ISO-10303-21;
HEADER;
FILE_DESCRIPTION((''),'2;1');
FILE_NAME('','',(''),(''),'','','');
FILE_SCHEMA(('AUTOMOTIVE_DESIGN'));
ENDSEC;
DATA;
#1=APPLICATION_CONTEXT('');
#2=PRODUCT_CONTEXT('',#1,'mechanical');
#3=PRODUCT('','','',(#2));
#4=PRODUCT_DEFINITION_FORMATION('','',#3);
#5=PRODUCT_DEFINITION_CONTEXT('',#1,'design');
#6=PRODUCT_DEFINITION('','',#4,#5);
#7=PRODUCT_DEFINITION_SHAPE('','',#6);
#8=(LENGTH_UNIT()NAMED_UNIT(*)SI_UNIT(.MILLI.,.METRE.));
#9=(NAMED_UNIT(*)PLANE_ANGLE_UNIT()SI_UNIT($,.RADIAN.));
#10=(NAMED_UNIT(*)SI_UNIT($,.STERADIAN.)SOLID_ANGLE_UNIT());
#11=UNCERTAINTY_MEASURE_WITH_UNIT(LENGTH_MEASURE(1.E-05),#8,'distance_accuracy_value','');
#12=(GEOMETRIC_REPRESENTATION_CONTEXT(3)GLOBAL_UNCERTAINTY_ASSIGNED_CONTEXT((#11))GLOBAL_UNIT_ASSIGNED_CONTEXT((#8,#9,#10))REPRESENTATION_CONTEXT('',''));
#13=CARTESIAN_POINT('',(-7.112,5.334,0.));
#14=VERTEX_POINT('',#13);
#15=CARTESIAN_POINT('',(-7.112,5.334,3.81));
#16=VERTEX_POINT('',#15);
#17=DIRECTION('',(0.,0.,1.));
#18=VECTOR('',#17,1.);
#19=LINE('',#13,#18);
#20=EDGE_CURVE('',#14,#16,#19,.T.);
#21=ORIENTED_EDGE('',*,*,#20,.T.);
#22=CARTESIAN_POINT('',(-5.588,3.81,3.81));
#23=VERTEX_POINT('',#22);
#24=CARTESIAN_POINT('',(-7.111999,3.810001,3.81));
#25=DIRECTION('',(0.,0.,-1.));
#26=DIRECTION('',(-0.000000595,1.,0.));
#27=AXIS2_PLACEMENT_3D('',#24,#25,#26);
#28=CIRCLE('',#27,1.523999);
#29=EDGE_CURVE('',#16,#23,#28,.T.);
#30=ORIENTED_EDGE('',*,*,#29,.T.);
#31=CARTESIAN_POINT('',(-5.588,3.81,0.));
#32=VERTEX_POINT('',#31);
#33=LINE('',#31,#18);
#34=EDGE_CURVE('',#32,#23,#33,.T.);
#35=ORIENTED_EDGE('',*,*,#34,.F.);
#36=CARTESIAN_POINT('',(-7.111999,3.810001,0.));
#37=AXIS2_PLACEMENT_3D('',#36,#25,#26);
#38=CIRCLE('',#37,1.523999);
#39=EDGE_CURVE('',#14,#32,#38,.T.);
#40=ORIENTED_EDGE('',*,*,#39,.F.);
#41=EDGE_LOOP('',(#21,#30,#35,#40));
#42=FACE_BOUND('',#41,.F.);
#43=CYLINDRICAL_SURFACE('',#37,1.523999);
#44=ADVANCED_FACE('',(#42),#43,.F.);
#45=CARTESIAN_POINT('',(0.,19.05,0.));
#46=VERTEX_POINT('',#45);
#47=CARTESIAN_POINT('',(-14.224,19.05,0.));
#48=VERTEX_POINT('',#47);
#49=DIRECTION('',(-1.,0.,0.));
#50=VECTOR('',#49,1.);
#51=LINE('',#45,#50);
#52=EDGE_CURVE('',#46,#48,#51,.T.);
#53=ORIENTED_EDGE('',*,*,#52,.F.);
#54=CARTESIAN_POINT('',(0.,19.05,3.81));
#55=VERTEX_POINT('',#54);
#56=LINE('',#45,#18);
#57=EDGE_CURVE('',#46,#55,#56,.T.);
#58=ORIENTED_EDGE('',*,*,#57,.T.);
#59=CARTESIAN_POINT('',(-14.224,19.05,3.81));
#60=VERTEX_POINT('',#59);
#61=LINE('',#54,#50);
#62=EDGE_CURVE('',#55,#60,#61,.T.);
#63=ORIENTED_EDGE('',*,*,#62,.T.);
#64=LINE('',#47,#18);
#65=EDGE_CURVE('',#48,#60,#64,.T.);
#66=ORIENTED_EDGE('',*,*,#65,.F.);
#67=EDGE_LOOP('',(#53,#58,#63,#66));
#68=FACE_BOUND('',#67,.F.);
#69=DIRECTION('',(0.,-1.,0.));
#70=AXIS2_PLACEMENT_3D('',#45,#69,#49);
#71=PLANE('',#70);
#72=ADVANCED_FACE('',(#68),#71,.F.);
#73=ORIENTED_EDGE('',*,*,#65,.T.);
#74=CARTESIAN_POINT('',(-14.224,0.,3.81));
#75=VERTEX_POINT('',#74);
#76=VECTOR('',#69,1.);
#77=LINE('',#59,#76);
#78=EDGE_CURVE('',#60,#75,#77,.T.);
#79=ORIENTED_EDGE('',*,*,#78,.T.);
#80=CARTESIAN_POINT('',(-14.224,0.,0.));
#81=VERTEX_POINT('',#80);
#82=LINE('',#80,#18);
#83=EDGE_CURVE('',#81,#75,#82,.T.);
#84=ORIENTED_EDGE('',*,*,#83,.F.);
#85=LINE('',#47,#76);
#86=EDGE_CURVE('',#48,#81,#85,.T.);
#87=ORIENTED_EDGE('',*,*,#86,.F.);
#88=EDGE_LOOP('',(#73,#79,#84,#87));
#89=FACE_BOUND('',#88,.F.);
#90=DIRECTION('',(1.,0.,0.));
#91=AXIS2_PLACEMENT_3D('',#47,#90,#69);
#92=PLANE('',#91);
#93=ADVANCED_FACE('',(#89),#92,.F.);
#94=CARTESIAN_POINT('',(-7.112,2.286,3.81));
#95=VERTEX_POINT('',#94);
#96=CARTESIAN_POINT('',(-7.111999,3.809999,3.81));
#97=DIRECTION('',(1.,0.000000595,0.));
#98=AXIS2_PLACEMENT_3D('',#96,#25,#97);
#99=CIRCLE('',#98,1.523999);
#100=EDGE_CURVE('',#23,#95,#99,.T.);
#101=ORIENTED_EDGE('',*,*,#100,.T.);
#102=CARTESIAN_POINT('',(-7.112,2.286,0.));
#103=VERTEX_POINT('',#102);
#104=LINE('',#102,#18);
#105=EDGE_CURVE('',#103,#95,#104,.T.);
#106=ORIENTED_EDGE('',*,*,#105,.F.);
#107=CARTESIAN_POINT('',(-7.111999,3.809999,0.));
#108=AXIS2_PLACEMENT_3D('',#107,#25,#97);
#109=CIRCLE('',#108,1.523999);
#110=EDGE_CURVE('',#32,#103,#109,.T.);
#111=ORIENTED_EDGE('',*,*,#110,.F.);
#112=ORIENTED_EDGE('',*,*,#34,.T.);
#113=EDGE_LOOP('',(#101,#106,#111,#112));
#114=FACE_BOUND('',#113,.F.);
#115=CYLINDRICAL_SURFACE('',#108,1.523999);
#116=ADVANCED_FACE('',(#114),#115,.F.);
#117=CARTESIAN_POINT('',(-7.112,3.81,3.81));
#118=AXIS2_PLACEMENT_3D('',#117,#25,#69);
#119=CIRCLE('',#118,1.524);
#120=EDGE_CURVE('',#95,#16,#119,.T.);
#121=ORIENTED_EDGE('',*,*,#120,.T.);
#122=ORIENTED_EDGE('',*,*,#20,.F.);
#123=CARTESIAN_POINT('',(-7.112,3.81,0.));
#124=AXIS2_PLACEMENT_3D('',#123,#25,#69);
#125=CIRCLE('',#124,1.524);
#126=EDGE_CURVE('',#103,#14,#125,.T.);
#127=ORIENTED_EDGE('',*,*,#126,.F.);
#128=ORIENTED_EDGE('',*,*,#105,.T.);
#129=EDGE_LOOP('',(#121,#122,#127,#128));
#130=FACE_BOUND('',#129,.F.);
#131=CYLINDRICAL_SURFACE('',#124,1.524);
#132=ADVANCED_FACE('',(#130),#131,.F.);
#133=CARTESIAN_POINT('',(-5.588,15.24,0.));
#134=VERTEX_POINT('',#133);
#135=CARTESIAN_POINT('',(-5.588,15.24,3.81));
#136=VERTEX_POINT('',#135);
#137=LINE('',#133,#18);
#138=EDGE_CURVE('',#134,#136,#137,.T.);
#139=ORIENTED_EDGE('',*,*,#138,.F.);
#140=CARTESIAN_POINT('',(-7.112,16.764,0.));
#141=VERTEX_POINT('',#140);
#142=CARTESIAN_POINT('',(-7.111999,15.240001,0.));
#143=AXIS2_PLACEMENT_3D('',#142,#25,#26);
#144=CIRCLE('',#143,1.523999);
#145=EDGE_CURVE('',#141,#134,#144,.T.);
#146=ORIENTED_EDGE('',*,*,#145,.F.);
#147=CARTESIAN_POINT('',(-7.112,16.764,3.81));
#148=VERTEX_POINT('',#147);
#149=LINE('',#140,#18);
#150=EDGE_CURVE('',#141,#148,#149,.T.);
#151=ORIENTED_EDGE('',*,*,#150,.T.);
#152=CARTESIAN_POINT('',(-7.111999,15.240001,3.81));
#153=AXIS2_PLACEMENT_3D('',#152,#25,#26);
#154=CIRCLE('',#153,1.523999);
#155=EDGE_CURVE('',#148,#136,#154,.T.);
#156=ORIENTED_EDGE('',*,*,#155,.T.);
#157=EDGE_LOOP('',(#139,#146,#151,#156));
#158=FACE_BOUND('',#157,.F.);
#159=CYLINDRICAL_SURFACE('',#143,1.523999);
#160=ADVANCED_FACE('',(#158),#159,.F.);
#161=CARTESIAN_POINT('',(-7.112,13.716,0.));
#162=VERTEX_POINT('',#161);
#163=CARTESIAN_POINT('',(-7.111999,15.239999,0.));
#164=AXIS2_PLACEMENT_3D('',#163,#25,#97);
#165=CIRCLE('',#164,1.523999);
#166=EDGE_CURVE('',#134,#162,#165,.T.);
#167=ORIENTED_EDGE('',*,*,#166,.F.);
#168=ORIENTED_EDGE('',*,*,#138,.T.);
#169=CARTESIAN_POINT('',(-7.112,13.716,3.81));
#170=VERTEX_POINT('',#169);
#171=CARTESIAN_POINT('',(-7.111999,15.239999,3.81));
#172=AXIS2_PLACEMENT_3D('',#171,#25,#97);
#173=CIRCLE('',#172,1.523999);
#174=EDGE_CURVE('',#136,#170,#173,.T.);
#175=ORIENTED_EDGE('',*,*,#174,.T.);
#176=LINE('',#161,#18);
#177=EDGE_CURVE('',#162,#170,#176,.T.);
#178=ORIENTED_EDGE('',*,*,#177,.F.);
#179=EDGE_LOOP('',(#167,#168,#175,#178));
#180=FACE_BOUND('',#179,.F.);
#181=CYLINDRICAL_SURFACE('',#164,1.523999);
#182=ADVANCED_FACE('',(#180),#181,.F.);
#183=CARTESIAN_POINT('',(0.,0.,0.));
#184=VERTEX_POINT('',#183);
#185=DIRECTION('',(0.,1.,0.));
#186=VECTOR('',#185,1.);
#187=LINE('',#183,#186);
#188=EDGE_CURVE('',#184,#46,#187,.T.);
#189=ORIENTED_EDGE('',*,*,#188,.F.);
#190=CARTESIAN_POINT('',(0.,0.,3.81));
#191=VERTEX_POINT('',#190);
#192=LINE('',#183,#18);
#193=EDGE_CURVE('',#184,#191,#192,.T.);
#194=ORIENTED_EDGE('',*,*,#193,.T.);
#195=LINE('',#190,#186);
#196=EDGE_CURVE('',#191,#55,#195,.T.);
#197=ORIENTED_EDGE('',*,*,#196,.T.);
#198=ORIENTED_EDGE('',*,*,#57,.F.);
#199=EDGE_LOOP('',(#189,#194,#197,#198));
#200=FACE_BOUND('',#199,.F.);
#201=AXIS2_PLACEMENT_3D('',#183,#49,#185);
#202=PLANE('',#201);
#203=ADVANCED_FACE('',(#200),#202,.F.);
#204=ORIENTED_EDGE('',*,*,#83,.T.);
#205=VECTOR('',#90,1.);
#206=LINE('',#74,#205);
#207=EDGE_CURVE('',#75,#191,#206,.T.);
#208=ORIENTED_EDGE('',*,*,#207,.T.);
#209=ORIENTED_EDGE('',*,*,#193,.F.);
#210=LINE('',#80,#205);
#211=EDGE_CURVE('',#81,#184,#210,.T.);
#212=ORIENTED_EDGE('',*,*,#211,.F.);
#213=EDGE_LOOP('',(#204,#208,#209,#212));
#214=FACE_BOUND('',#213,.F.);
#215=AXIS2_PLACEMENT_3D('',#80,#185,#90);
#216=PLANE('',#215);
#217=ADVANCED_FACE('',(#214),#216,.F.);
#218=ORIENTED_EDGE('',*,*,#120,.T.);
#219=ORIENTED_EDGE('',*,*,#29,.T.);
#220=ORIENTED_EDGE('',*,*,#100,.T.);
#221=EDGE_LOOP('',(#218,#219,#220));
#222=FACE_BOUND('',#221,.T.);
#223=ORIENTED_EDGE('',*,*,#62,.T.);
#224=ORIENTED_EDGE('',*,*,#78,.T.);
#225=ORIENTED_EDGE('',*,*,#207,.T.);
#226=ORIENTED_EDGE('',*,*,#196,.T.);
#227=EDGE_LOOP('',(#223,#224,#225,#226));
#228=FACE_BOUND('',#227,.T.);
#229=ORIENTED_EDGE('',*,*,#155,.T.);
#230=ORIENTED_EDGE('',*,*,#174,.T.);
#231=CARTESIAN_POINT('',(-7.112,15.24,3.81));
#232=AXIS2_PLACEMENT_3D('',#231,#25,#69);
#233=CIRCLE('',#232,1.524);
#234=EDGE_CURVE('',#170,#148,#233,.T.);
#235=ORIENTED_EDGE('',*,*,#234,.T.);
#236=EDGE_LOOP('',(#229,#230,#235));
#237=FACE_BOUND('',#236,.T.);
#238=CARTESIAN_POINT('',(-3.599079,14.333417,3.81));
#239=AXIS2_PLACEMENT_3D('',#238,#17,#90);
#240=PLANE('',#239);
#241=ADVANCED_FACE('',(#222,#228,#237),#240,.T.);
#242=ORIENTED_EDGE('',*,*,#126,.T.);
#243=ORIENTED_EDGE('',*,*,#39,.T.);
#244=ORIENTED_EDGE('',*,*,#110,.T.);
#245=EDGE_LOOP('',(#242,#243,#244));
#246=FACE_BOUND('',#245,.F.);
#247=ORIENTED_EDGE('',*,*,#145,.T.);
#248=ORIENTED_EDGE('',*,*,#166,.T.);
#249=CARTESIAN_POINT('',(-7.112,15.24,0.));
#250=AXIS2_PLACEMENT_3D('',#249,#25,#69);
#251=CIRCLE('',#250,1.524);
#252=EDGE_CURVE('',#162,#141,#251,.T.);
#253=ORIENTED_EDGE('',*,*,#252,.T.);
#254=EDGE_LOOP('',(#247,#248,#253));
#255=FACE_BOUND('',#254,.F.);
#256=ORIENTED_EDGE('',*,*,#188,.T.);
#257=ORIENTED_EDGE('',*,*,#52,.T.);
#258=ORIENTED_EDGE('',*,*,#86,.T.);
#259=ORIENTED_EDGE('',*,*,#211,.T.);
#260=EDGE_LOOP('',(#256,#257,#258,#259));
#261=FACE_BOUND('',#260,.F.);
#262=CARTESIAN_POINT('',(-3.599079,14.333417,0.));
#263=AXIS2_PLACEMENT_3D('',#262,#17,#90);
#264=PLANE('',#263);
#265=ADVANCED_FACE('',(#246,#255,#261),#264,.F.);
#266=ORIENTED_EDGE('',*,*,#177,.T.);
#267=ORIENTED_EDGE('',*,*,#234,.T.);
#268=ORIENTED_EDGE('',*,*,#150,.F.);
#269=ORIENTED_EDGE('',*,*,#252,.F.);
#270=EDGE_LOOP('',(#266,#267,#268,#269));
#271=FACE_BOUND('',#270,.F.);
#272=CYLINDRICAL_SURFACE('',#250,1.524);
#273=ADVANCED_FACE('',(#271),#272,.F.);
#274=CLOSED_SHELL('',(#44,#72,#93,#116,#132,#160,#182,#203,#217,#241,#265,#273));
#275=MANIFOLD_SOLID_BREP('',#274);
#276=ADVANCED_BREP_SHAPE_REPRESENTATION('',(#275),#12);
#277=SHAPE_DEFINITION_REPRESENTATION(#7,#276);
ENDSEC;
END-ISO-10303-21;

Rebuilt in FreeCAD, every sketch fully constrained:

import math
import FreeCAD as App
import Part
import Sketcher
Q = App.Units.Quantity

doc = App.newDocument("Part")
body = doc.addObject("PartDesign::Body", "Body")

# Sketch on XY plane
sketch1 = doc.addObject("Sketcher::SketchObject", "Sketch")
body.addObject(sketch1)
sketch1.AttachmentSupport = (doc.XY_Plane, [""])
sketch1.MapMode = "FlatFace"
sketch1.addGeometry([
    Part.LineSegment(App.Vector(0, 19.05, 0), App.Vector(-14.224, 19.05, 0)),  # 0
    Part.LineSegment(App.Vector(-14.224, 19.05, 0), App.Vector(-14.224, 0, 0)),  # 1
    Part.LineSegment(App.Vector(-14.224, 0, 0), App.Vector(0, 0, 0)),  # 2
    Part.LineSegment(App.Vector(0, 0, 0), App.Vector(0, 19.05, 0)),  # 3
    Part.ArcOfCircle(Part.Circle(App.Vector(-7.112, 3.81, 0), App.Vector(0, 0, 1), 1.524), math.radians(90), math.radians(270)),  # 4
    Part.ArcOfCircle(Part.Circle(App.Vector(-7.111999, 3.810001, 0), App.Vector(0, 0, 1), 1.523999), math.radians(-0.000034), math.radians(90.000034)),  # 5
    Part.ArcOfCircle(Part.Circle(App.Vector(-7.111999, 3.809999, 0), App.Vector(0, 0, 1), 1.523999), math.radians(-90.000034), math.radians(0.000034)),  # 6
    Part.ArcOfCircle(Part.Circle(App.Vector(-7.111999, 15.240001, 0), App.Vector(0, 0, 1), 1.523999), math.radians(-0.000034), math.radians(90.000034)),  # 7
    Part.ArcOfCircle(Part.Circle(App.Vector(-7.111999, 15.239999, 0), App.Vector(0, 0, 1), 1.523999), math.radians(-90.000034), math.radians(0.000034)),  # 8
    Part.ArcOfCircle(Part.Circle(App.Vector(-7.112, 15.24, 0), App.Vector(0, 0, 1), 1.524), math.radians(90), math.radians(270)),  # 9
], False)
sketch1.addConstraint([
    Sketcher.Constraint("Coincident", 0, 2, 1, 1),
    Sketcher.Constraint("Coincident", 1, 2, 2, 1),
    Sketcher.Constraint("Coincident", 2, 2, 3, 1),
    Sketcher.Constraint("Coincident", 3, 2, 0, 1),
    Sketcher.Constraint("Tangent", 4, 1, 5, 2),
    Sketcher.Constraint("Tangent", 5, 1, 6, 2),
    Sketcher.Constraint("Tangent", 6, 1, 4, 2),
    Sketcher.Constraint("Tangent", 7, 1, 8, 2),
    Sketcher.Constraint("Tangent", 8, 1, 9, 2),
    Sketcher.Constraint("Tangent", 9, 1, 7, 2),
    Sketcher.Constraint("Horizontal", 0),
    Sketcher.Constraint("Vertical", 1),
    Sketcher.Constraint("Horizontal", 2),
    Sketcher.Constraint("Vertical", 3),
    Sketcher.Constraint("Coincident", 2, 2, -1, 1),
    Sketcher.Constraint("Equal", 6, 7),
    Sketcher.Constraint("Horizontal", 6, 3, 5, 1),
    Sketcher.Constraint("Horizontal", 9, 3, 7, 1),
    Sketcher.Constraint("Vertical", 6, 3, 7, 3),
    Sketcher.Constraint("Vertical", 9, 3, 4, 1),
    Sketcher.Constraint("Vertical", 4, 1, 6, 1),
    Sketcher.Constraint("Vertical", 6, 1, 8, 1),
    Sketcher.Constraint("Vertical", 8, 1, 9, 1),
    Sketcher.Constraint("Radius", 4, Q("0.06 in")),
    Sketcher.Constraint("DistanceX", 0, 2, 0, 1, Q("0.56 in")),
    Sketcher.Constraint("DistanceY", 1, 2, 1, 1, Q("0.75 in")),
    Sketcher.Constraint("DistanceY", -1, 1, 7, 3, Q("0.6 in")),
    Sketcher.Constraint("DistanceY", 5, 3, 0, 2, Q("0.6 in")),
    Sketcher.Constraint("DistanceX", 4, 3, -1, 1, Q("0.28 in")),
])
pad1 = doc.addObject("PartDesign::Pad", "Pad")
body.addObject(pad1)
pad1.Profile = sketch1
pad1.Length = Q("0.15 in")

doc.recompute()
